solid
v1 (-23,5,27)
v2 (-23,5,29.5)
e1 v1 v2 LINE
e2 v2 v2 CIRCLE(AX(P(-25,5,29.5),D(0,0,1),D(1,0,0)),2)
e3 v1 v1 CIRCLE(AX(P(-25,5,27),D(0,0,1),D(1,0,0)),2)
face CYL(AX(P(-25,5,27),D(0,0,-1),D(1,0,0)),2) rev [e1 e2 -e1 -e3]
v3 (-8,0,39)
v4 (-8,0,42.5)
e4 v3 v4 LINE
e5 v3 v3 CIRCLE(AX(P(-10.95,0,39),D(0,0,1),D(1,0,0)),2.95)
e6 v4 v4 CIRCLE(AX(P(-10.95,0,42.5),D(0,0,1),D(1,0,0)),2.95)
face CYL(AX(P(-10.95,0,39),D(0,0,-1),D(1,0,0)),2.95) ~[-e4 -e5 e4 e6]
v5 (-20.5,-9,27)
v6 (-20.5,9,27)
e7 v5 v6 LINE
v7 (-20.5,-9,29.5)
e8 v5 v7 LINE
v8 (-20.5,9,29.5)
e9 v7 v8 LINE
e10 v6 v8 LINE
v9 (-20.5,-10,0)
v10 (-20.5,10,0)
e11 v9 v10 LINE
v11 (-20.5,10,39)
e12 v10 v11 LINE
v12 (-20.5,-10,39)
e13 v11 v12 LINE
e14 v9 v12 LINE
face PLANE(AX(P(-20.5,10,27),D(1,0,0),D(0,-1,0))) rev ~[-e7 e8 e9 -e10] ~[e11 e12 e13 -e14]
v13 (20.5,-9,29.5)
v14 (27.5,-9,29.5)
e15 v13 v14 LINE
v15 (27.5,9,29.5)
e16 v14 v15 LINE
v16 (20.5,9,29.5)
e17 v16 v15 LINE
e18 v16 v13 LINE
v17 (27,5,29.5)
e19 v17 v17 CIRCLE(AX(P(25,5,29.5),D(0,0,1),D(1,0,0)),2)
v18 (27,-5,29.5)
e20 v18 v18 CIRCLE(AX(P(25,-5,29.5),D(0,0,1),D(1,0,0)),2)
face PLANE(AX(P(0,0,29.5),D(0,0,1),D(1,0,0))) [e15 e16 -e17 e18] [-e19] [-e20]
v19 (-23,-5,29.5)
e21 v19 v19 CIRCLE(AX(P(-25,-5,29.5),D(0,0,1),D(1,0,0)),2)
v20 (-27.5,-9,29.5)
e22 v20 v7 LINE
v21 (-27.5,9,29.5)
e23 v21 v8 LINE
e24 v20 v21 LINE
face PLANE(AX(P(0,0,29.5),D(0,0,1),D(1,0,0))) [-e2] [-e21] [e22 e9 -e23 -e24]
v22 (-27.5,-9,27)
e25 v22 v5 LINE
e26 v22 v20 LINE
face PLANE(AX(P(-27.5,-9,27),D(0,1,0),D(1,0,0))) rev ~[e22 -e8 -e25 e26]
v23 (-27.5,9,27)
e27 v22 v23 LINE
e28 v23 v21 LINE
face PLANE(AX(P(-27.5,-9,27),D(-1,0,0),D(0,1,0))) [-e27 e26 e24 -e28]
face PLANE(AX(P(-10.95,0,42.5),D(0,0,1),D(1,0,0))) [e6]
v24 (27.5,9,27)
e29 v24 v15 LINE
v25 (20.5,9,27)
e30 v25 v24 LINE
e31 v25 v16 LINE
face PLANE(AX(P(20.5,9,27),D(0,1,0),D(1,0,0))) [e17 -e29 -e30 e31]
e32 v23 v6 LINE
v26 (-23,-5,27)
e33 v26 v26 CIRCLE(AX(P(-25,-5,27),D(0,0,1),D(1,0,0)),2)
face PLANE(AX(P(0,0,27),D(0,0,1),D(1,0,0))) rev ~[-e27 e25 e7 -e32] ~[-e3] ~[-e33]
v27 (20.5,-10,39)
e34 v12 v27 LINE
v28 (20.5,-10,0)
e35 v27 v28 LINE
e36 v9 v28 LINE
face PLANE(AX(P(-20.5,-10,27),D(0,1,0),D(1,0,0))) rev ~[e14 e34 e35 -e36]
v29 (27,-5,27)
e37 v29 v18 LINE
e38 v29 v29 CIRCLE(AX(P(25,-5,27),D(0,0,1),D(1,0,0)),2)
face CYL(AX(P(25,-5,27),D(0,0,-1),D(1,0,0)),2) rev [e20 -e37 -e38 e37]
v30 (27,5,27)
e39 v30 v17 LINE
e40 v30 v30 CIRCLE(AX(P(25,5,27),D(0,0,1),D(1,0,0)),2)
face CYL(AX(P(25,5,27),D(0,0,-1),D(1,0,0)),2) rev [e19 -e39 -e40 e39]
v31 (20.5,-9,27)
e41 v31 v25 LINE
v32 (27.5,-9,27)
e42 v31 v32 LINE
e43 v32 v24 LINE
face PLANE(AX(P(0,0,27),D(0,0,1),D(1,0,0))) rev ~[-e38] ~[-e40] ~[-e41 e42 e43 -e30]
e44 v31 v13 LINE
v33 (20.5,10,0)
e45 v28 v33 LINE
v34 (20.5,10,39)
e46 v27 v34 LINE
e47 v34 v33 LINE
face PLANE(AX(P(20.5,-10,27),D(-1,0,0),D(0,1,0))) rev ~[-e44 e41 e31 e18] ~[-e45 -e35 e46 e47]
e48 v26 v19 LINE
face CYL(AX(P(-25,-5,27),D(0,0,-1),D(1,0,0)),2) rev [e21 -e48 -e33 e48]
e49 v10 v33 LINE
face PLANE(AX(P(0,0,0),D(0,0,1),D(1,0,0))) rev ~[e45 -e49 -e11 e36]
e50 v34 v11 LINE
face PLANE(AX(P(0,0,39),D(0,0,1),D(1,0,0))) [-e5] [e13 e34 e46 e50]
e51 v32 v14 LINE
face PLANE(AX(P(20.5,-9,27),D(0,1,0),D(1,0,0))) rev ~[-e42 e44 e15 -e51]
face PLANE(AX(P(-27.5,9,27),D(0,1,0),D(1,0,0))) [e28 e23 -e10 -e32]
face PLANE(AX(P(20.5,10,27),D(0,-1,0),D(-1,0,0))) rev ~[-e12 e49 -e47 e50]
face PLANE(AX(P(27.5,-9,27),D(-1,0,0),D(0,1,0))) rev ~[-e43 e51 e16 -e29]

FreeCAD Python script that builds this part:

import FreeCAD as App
import Part
import Sketcher

V = App.Vector
Q = App.Units.Quantity

doc = App.newDocument("Part")
params = doc.addObject("Spreadsheet::Sheet", "Params")
for row, (alias, value) in enumerate([
    ("sketch1_width", "41 mm"),
    ("sketch1_height", "20 mm"),
    ("pad1_length", "27 mm"),
    ("sketch2_diameter", "4 mm"),
    ("sketch2_width", "41 mm"),
    ("sketch2_width2", "7 mm"),
    ("sketch2_height", "1 mm"),
    ("sketch2_height2", "18 mm"),
    ("pad2_length", "2.5 mm"),
    ("sketch3_width", "41 mm"),
    ("sketch3_height", "20 mm"),
    ("pad3_length", "12 mm"),
    ("sketch4_diameter", "5.9 mm"),
    ("pad4_length", "3.5 mm"),
], start=1):
    params.set(f"A{row}", alias)
    params.set(f"B{row}", "=" + value)
    params.setAlias(f"B{row}", alias)

body = doc.addObject("PartDesign::Body", "Body")

# Sketch on XY plane
sketch1 = body.newObject("Sketcher::SketchObject", "Sketch")
sketch1.AttachmentSupport = (doc.getObject("XY_Plane"), [""])
sketch1.MapMode = "FlatFace"
sketch1.addGeometry(Part.LineSegment(V(-20.5, 10, 0), V(-20.5, -10, 0)), False)
sketch1.addGeometry(Part.LineSegment(V(-20.5, -10, 0), V(20.5, -10, 0)), False)
sketch1.addGeometry(Part.LineSegment(V(20.5, -10, 0), V(20.5, 10, 0)), False)
sketch1.addGeometry(Part.LineSegment(V(20.5, 10, 0), V(-20.5, 10, 0)), False)
sketch1.addConstraint(Sketcher.Constraint("Coincident", 0, 2, 1, 1))
sketch1.addConstraint(Sketcher.Constraint("Coincident", 1, 2, 2, 1))
sketch1.addConstraint(Sketcher.Constraint("Coincident", 2, 2, 3, 1))
sketch1.addConstraint(Sketcher.Constraint("Coincident", 3, 2, 0, 1))
sketch1.addConstraint(Sketcher.Constraint("Vertical", 0))
sketch1.addConstraint(Sketcher.Constraint("Horizontal", 1))
sketch1.addConstraint(Sketcher.Constraint("Vertical", 2))
sketch1.addConstraint(Sketcher.Constraint("Horizontal", 3))
sketch1.addConstraint(Sketcher.Constraint("Symmetric", 0, 2, 2, 2, -1, 1))
sketch1.addConstraint(Sketcher.Constraint("DistanceX", 1, 1, 1, 2, Q("41 mm")))
sketch1.addConstraint(Sketcher.Constraint("DistanceY", 0, 2, 0, 1, Q("20 mm")))
sketch1.setExpression("Constraints[9]", "Params.sketch1_width")
sketch1.setExpression("Constraints[10]", "Params.sketch1_height")
pad1 = body.newObject("PartDesign::Pad", "Pad")
pad1.Profile = sketch1
pad1.setExpression("Length", "Params.pad1_length")

# Sketch on XY plane
sketch2 = body.newObject("Sketcher::SketchObject", "Sketch001")
sketch2.AttachmentSupport = (doc.getObject("XY_Plane"), [""])
sketch2.MapMode = "FlatFace"
sketch2.AttachmentOffset = App.Placement(V(0, 0, 27), App.Rotation())
sketch2.addGeometry(Part.LineSegment(V(20.5, 10, 0), V(-20.5, 10, 0)), False)
sketch2.addGeometry(Part.LineSegment(V(-20.5, 10, 0), V(-20.5, 9, 0)), False)
sketch2.addGeometry(Part.LineSegment(V(-20.5, 9, 0), V(-27.5, 9, 0)), False)
sketch2.addGeometry(Part.LineSegment(V(-27.5, 9, 0), V(-27.5, -9, 0)), False)
sketch2.addGeometry(Part.LineSegment(V(-27.5, -9, 0), V(-20.5, -9, 0)), False)
sketch2.addGeometry(Part.LineSegment(V(-20.5, -9, 0), V(-20.5, -10, 0)), False)
sketch2.addGeometry(Part.LineSegment(V(-20.5, -10, 0), V(20.5, -10, 0)), False)
sketch2.addGeometry(Part.LineSegment(V(20.5, -10, 0), V(20.5, -9, 0)), False)
sketch2.addGeometry(Part.LineSegment(V(20.5, -9, 0), V(27.5, -9, 0)), False)
sketch2.addGeometry(Part.LineSegment(V(27.5, -9, 0), V(27.5, 9, 0)), False)
sketch2.addGeometry(Part.LineSegment(V(27.5, 9, 0), V(20.5, 9, 0)), False)
sketch2.addGeometry(Part.LineSegment(V(20.5, 9, 0), V(20.5, 10, 0)), False)
sketch2.addGeometry(Part.Circle(V(-25, -5, 0), V(0, 0, 1), 2), False)
sketch2.addGeometry(Part.Circle(V(25, -5, 0), V(0, 0, 1), 2), False)
sketch2.addGeometry(Part.Circle(V(-25, 5, 0), V(0, 0, 1), 2), False)
sketch2.addGeometry(Part.Circle(V(25, 5, 0), V(0, 0, 1), 2), False)
sketch2.addConstraint(Sketcher.Constraint("Coincident", 0, 2, 1, 1))
sketch2.addConstraint(Sketcher.Constraint("Coincident", 1, 2, 2, 1))
sketch2.addConstraint(Sketcher.Constraint("Coincident", 2, 2, 3, 1))
sketch2.addConstraint(Sketcher.Constraint("Coincident", 3, 2, 4, 1))
sketch2.addConstraint(Sketcher.Constraint("Coincident", 4, 2, 5, 1))
sketch2.addConstraint(Sketcher.Constraint("Coincident", 5, 2, 6, 1))
sketch2.addConstraint(Sketcher.Constraint("Coincident", 6, 2, 7, 1))
sketch2.addConstraint(Sketcher.Constraint("Coincident", 7, 2, 8, 1))
sketch2.addConstraint(Sketcher.Constraint("Coincident", 8, 2, 9, 1))
sketch2.addConstraint(Sketcher.Constraint("Coincident", 9, 2, 10, 1))
sketch2.addConstraint(Sketcher.Constraint("Coincident", 10, 2, 11, 1))
sketch2.addConstraint(Sketcher.Constraint("Coincident", 11, 2, 0, 1))
sketch2.addConstraint(Sketcher.Constraint("Horizontal", 0))
sketch2.addConstraint(Sketcher.Constraint("Vertical", 1))
sketch2.addConstraint(Sketcher.Constraint("Horizontal", 2))
sketch2.addConstraint(Sketcher.Constraint("Vertical", 3))
sketch2.addConstraint(Sketcher.Constraint("Horizontal", 4))
sketch2.addConstraint(Sketcher.Constraint("Vertical", 5))
sketch2.addConstraint(Sketcher.Constraint("Horizontal", 6))
sketch2.addConstraint(Sketcher.Constraint("Vertical", 7))
sketch2.addConstraint(Sketcher.Constraint("Horizontal", 8))
sketch2.addConstraint(Sketcher.Constraint("Vertical", 9))
sketch2.addConstraint(Sketcher.Constraint("Horizontal", 10))
sketch2.addConstraint(Sketcher.Constraint("Vertical", 11))
sketch2.addConstraint(Sketcher.Constraint("Equal", 12, 13))
sketch2.addConstraint(Sketcher.Constraint("Equal", 13, 14))
sketch2.addConstraint(Sketcher.Constraint("Equal", 14, 15))
sketch2.addConstraint(Sketcher.Constraint("Symmetric", 13, 3, 14, 3, -1, 1))
sketch2.addConstraint(Sketcher.Constraint("Symmetric", 12, 3, 15, 3, -1, 1))
sketch2.addConstraint(Sketcher.Constraint("Symmetric", 0, 2, 6, 2, -1, 1))
sketch2.addConstraint(Sketcher.Constraint("Symmetric", 2, 2, 8, 2, -1, 1))
sketch2.addConstraint(Sketcher.Constraint("Symmetric", 4, 2, 10, 2, -1, 1))
sketch2.addConstraint(Sketcher.Constraint("Symmetric", 12, 3, 13, 3, -2))
sketch2.addConstraint(Sketcher.Constraint("Symmetric", 4, 2, 7, 2, -2))
sketch2.addConstraint(Sketcher.Constraint("Diameter", 12, Q("4 mm")))
sketch2.addConstraint(Sketcher.Constraint("DistanceX", 0, 2, 0, 1, Q("41 mm")))
sketch2.addConstraint(Sketcher.Constraint("DistanceX", 2, 2, 2, 1, Q("7 mm")))
sketch2.addConstraint(Sketcher.Constraint("DistanceY", 1, 2, 1, 1, Q("1 mm")))
sketch2.addConstraint(Sketcher.Constraint("DistanceY", 3, 2, 3, 1, Q("18 mm")))
sketch2.addConstraint(Sketcher.Constraint("DistanceX", 12, 3, -1, 1, Q("25 mm")))
sketch2.addConstraint(Sketcher.Constraint("DistanceY", 12, 3, -1, 1, Q("5 mm")))
sketch2.setExpression("Constraints[34]", "Params.sketch2_diameter")
sketch2.setExpression("Constraints[35]", "Params.sketch2_width")
sketch2.setExpression("Constraints[36]", "Params.sketch2_width2")
sketch2.setExpression("Constraints[37]", "Params.sketch2_height")
sketch2.setExpression("Constraints[38]", "Params.sketch2_height2")
pad2 = body.newObject("PartDesign::Pad", "Pad001")
pad2.Profile = sketch2
pad2.setExpression("Length", "Params.pad2_length")

# Sketch on XY plane
sketch3 = body.newObject("Sketcher::SketchObject", "Sketch002")
sketch3.AttachmentSupport = (doc.getObject("XY_Plane"), [""])
sketch3.MapMode = "FlatFace"
sketch3.AttachmentOffset = App.Placement(V(0, 0, 27), App.Rotation())
sketch3.addGeometry(Part.LineSegment(V(20.5, 10, 0), V(-20.5, 10, 0)), False)
sketch3.addGeometry(Part.LineSegment(V(-20.5, 10, 0), V(-20.5, -10, 0)), False)
sketch3.addGeometry(Part.LineSegment(V(-20.5, -10, 0), V(20.5, -10, 0)), False)
sketch3.addGeometry(Part.LineSegment(V(20.5, -10, 0), V(20.5, 10, 0)), False)
sketch3.addConstraint(Sketcher.Constraint("Coincident", 0, 2, 1, 1))
sketch3.addConstraint(Sketcher.Constraint("Coincident", 1, 2, 2, 1))
sketch3.addConstraint(Sketcher.Constraint("Coincident", 2, 2, 3, 1))
sketch3.addConstraint(Sketcher.Constraint("Coincident", 3, 2, 0, 1))
sketch3.addConstraint(Sketcher.Constraint("Horizontal", 0))
sketch3.addConstraint(Sketcher.Constraint("Vertical", 1))
sketch3.addConstraint(Sketcher.Constraint("Horizontal", 2))
sketch3.addConstraint(Sketcher.Constraint("Vertical", 3))
sketch3.addConstraint(Sketcher.Constraint("Symmetric", 0, 2, 2, 2, -1, 1))
sketch3.addConstraint(Sketcher.Constraint("DistanceX", 0, 2, 0, 1, Q("41 mm")))
sketch3.addConstraint(Sketcher.Constraint("DistanceY", 1, 2, 1, 1, Q("20 mm")))
sketch3.setExpression("Constraints[9]", "Params.sketch3_width")
sketch3.setExpression("Constraints[10]", "Params.sketch3_height")
pad3 = body.newObject("PartDesign::Pad", "Pad002")
pad3.Profile = sketch3
pad3.setExpression("Length", "Params.pad3_length")

# Sketch on XY plane
sketch4 = body.newObject("Sketcher::SketchObject", "Sketch003")
sketch4.AttachmentSupport = (doc.getObject("XY_Plane"), [""])
sketch4.MapMode = "FlatFace"
sketch4.AttachmentOffset = App.Placement(V(0, 0, 39), App.Rotation())
sketch4.addGeometry(Part.Circle(V(-10.95, 0, 0), V(0, 0, 1), 2.95), False)
sketch4.addConstraint(Sketcher.Constraint("PointOnObject", 0, 3, -1))
sketch4.addConstraint(Sketcher.Constraint("Diameter", 0, Q("5.9 mm")))
sketch4.addConstraint(Sketcher.Constraint("DistanceX", 0, 3, -1, 1, Q("10.95 mm")))
sketch4.setExpression("Constraints[1]", "Params.sketch4_diameter")
pad4 = body.newObject("PartDesign::Pad", "Pad003")
pad4.Profile = sketch4
pad4.setExpression("Length", "Params.pad4_length")

doc.recompute()
